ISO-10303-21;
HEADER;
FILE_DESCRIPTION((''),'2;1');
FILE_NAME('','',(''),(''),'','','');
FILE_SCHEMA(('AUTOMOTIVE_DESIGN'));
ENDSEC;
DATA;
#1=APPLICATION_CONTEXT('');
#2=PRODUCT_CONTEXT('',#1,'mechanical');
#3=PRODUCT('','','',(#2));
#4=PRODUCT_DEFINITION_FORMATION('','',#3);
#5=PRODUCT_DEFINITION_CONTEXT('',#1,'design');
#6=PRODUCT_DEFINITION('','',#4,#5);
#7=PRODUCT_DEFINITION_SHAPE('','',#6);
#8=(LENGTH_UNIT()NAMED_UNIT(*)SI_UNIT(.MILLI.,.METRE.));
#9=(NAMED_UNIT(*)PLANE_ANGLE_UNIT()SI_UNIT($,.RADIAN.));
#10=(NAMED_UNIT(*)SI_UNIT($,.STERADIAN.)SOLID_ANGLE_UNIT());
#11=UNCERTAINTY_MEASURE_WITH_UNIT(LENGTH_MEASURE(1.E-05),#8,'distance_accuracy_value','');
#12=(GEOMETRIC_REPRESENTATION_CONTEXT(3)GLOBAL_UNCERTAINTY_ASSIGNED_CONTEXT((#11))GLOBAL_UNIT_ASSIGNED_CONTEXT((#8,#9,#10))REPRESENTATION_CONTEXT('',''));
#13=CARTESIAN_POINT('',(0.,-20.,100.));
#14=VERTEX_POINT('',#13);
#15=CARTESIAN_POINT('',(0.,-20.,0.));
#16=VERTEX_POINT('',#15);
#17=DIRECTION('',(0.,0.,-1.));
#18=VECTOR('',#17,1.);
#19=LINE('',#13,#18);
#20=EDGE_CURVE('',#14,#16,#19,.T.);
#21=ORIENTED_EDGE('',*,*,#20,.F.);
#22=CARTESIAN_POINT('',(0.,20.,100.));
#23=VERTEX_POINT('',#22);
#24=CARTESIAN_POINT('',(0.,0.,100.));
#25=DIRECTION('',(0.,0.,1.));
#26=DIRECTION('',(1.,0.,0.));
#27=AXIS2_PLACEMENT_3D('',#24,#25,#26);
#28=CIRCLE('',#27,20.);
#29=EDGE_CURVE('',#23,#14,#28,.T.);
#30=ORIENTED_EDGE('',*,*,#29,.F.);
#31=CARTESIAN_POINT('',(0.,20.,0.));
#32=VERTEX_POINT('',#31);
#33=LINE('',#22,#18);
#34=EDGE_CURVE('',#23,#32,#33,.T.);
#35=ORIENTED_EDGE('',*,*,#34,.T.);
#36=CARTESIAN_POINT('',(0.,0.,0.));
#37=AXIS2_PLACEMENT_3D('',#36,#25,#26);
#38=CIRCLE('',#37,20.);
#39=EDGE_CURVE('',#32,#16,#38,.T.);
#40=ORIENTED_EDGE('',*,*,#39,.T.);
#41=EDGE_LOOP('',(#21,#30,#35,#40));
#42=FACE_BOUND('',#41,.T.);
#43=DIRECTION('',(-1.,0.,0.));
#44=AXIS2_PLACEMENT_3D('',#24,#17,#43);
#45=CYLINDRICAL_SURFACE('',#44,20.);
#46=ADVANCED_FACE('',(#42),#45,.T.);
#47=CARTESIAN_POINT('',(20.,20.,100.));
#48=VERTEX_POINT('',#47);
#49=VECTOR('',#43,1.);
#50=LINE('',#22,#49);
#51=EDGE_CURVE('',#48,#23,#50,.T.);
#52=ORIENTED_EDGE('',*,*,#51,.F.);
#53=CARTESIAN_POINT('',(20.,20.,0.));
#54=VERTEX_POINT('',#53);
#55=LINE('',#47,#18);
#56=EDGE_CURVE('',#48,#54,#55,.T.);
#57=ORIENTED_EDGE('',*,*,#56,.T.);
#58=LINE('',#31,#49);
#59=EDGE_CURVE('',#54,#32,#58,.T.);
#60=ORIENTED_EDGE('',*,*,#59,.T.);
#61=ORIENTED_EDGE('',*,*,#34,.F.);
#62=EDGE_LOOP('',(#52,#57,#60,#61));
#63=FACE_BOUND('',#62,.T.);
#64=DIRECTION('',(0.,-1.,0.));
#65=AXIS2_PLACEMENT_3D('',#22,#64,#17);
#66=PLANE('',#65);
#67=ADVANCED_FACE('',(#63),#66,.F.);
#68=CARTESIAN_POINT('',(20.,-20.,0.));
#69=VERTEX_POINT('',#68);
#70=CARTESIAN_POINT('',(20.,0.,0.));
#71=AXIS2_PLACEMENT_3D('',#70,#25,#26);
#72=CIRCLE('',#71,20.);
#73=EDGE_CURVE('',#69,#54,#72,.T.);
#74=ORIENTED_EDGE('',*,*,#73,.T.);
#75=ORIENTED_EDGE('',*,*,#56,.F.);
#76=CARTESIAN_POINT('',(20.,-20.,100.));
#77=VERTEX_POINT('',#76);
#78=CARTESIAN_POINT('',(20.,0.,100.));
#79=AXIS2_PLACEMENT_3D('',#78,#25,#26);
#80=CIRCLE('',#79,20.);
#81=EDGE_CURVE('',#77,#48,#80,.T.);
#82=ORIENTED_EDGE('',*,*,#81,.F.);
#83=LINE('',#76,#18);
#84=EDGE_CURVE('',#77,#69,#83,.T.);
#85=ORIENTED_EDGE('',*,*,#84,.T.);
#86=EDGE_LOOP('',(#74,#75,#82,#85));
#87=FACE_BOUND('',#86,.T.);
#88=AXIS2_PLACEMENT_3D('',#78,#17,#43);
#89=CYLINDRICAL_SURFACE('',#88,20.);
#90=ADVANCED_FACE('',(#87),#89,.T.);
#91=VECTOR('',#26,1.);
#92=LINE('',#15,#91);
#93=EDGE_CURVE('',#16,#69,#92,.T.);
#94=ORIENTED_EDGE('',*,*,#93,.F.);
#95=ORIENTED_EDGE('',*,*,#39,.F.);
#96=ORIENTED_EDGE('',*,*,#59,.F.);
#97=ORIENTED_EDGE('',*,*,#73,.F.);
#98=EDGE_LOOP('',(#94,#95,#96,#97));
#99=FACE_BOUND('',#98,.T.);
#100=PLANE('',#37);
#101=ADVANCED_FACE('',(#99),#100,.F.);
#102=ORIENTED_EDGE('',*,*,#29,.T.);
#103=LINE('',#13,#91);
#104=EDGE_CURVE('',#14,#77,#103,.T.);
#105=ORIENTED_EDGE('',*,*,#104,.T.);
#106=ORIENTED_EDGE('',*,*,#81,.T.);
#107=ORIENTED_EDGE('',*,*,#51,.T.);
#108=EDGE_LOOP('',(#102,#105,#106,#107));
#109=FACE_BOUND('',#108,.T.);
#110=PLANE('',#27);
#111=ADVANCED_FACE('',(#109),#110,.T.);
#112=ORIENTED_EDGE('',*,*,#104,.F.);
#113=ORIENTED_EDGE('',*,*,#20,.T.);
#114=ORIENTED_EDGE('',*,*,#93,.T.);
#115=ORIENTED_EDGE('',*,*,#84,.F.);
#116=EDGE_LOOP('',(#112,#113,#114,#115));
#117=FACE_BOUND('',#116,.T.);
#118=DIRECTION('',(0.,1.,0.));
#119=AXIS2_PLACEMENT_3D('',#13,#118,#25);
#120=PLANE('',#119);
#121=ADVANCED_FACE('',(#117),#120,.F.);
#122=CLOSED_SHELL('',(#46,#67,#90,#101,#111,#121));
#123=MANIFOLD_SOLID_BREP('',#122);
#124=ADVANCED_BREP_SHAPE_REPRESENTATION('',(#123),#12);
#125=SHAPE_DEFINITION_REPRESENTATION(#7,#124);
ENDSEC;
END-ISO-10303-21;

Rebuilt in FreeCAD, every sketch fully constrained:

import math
import FreeCAD as App
import Part
import Sketcher

doc = App.newDocument("Part")
body = doc.addObject("PartDesign::Body", "Body")

# Sketch on XY plane
sketch1 = body.newObject("Sketcher::SketchObject", "Sketch")
sketch1.AttachmentSupport = (doc.getObject("XY_Plane"), [""])
sketch1.MapMode = "FlatFace"
sketch1.addGeometry([
    Part.LineSegment(App.Vector(20, 20, 0), App.Vector(0, 20, 0)),
    Part.ArcOfCircle(Part.Circle(App.Vector(0, 0, 0), App.Vector(0, 0, 1), 20), math.radians(90), math.radians(270)),
    Part.LineSegment(App.Vector(0, -20, 0), App.Vector(20, -20, 0)),
    Part.ArcOfCircle(Part.Circle(App.Vector(20, 0, 0), App.Vector(0, 0, 1), 20), math.radians(-90), math.radians(90)),
], False)
sketch1.addConstraint([
    Sketcher.Constraint("Tangent", 0, 2, 1, 1),
    Sketcher.Constraint("Tangent", 1, 2, 2, 1),
    Sketcher.Constraint("Tangent", 2, 2, 3, 1),
    Sketcher.Constraint("Tangent", 3, 2, 0, 1),
    Sketcher.Constraint("Horizontal", 0),
    Sketcher.Constraint("Horizontal", 2),
    Sketcher.Constraint("Coincident", 1, 3, -1, 1),
    Sketcher.Constraint("Radius", 1, 20.0),
    Sketcher.Constraint("DistanceX", 0, 2, 0, 1, 20.0),
])
pad1 = body.newObject("PartDesign::Pad", "Pad")
pad1.Profile = sketch1
pad1.Length = 100

doc.recompute()
